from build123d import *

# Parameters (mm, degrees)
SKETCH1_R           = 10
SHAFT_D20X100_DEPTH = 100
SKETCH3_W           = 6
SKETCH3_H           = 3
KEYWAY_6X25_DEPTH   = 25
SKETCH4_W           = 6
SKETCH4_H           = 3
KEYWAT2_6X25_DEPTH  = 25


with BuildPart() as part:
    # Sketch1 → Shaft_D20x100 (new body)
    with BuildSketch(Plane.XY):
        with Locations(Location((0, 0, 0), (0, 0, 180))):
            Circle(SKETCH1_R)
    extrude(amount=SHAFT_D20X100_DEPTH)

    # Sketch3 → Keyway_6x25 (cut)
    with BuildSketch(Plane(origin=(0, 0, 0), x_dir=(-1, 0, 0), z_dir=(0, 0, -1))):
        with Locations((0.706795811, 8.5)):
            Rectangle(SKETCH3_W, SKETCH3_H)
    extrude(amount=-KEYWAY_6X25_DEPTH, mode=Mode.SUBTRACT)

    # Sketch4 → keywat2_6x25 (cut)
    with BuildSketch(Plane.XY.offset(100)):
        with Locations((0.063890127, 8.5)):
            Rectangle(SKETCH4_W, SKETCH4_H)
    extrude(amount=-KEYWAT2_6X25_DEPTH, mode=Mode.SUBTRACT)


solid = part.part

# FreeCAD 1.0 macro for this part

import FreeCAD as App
import Part
import Sketcher


def add_polygon(sketch, points):
    """Adds a closed chain of lines whose ends are joined by coincident constraints."""
    first, n = sketch.GeometryCount, len(points)
    for a, b in zip(points, points[1:] + points[:1]):
        sketch.addGeometry(Part.LineSegment(App.Vector(*a, 0), App.Vector(*b, 0)), False)
    for i in range(n):
        sketch.addConstraint(Sketcher.Constraint("Coincident", first + i, 2, first + (i + 1) % n, 1))

doc = App.newDocument("Part")
body = doc.addObject("PartDesign::Body", "Body")

sketch1 = doc.addObject("Sketcher::SketchObject", "Sketch")
body.addObject(sketch1)
sketch1.AttachmentSupport = (doc.XY_Plane, [""])
sketch1.MapMode = "FlatFace"
sketch1.addGeometry(Part.Circle(App.Vector(0, 0, 0), App.Vector(0, 0, 1), 10), False)
sketch1.addConstraint([
    Sketcher.Constraint("Coincident", 0, 3, -1, 1),
    Sketcher.Constraint("Diameter", 0, 20.0),
])
pad1 = doc.addObject("PartDesign::Pad", "Pad")
body.addObject(pad1)
pad1.Profile = sketch1
pad1.Length = 100

sketch2 = doc.addObject("Sketcher::SketchObject", "Sketch001")
body.addObject(sketch2)
sketch2.AttachmentSupport = (doc.XY_Plane, [""])
sketch2.MapMode = "FlatFace"
add_polygon(sketch2, [(2.3, 10), (2.3, 7), (-3.7, 7), (-3.7, 10)])
sketch2.addConstraint([
    Sketcher.Constraint("Vertical", 0),
    Sketcher.Constraint("Horizontal", 1),
    Sketcher.Constraint("Vertical", 2),
    Sketcher.Constraint("Horizontal", 3),
    Sketcher.Constraint("DistanceX", 1, 2, 1, 1, 6.0),
    Sketcher.Constraint("DistanceY", 0, 2, 0, 1, 3.0),
    Sketcher.Constraint("DistanceY", -1, 1, 0, 2, 7.0),
    Sketcher.Constraint("DistanceX", -1, 1, 0, 2, 2.293204),
])
pocket1 = doc.addObject("PartDesign::Pocket", "Pocket")
body.addObject(pocket1)
pocket1.Profile = sketch2
pocket1.Length = 25
pocket1.Reversed = True

sketch3 = doc.addObject("Sketcher::SketchObject", "Sketch002")
body.addObject(sketch3)
sketch3.AttachmentSupport = (doc.XY_Plane, [""])
sketch3.MapMode = "FlatFace"
sketch3.AttachmentOffset = App.Placement(App.Vector(0, 0, 100), App.Rotation())
add_polygon(sketch3, [(-2.9, 10), (-2.9, 7), (3.1, 7), (3.1, 10)])
sketch3.addConstraint([
    Sketcher.Constraint("Vertical", 0),
    Sketcher.Constraint("Horizontal", 1),
    Sketcher.Constraint("Vertical", 2),
    Sketcher.Constraint("Horizontal", 3),
    Sketcher.Constraint("DistanceX", 1, 1, 1, 2, 6.0),
    Sketcher.Constraint("DistanceY", 0, 2, 0, 1, 3.0),
    Sketcher.Constraint("DistanceY", -1, 1, 0, 2, 7.0),
    Sketcher.Constraint("DistanceX", 0, 2, -1, 1, 2.93611),
])
pocket2 = doc.addObject("PartDesign::Pocket", "Pocket001")
body.addObject(pocket2)
pocket2.Profile = sketch3
pocket2.Length = 25

doc.recompute()
